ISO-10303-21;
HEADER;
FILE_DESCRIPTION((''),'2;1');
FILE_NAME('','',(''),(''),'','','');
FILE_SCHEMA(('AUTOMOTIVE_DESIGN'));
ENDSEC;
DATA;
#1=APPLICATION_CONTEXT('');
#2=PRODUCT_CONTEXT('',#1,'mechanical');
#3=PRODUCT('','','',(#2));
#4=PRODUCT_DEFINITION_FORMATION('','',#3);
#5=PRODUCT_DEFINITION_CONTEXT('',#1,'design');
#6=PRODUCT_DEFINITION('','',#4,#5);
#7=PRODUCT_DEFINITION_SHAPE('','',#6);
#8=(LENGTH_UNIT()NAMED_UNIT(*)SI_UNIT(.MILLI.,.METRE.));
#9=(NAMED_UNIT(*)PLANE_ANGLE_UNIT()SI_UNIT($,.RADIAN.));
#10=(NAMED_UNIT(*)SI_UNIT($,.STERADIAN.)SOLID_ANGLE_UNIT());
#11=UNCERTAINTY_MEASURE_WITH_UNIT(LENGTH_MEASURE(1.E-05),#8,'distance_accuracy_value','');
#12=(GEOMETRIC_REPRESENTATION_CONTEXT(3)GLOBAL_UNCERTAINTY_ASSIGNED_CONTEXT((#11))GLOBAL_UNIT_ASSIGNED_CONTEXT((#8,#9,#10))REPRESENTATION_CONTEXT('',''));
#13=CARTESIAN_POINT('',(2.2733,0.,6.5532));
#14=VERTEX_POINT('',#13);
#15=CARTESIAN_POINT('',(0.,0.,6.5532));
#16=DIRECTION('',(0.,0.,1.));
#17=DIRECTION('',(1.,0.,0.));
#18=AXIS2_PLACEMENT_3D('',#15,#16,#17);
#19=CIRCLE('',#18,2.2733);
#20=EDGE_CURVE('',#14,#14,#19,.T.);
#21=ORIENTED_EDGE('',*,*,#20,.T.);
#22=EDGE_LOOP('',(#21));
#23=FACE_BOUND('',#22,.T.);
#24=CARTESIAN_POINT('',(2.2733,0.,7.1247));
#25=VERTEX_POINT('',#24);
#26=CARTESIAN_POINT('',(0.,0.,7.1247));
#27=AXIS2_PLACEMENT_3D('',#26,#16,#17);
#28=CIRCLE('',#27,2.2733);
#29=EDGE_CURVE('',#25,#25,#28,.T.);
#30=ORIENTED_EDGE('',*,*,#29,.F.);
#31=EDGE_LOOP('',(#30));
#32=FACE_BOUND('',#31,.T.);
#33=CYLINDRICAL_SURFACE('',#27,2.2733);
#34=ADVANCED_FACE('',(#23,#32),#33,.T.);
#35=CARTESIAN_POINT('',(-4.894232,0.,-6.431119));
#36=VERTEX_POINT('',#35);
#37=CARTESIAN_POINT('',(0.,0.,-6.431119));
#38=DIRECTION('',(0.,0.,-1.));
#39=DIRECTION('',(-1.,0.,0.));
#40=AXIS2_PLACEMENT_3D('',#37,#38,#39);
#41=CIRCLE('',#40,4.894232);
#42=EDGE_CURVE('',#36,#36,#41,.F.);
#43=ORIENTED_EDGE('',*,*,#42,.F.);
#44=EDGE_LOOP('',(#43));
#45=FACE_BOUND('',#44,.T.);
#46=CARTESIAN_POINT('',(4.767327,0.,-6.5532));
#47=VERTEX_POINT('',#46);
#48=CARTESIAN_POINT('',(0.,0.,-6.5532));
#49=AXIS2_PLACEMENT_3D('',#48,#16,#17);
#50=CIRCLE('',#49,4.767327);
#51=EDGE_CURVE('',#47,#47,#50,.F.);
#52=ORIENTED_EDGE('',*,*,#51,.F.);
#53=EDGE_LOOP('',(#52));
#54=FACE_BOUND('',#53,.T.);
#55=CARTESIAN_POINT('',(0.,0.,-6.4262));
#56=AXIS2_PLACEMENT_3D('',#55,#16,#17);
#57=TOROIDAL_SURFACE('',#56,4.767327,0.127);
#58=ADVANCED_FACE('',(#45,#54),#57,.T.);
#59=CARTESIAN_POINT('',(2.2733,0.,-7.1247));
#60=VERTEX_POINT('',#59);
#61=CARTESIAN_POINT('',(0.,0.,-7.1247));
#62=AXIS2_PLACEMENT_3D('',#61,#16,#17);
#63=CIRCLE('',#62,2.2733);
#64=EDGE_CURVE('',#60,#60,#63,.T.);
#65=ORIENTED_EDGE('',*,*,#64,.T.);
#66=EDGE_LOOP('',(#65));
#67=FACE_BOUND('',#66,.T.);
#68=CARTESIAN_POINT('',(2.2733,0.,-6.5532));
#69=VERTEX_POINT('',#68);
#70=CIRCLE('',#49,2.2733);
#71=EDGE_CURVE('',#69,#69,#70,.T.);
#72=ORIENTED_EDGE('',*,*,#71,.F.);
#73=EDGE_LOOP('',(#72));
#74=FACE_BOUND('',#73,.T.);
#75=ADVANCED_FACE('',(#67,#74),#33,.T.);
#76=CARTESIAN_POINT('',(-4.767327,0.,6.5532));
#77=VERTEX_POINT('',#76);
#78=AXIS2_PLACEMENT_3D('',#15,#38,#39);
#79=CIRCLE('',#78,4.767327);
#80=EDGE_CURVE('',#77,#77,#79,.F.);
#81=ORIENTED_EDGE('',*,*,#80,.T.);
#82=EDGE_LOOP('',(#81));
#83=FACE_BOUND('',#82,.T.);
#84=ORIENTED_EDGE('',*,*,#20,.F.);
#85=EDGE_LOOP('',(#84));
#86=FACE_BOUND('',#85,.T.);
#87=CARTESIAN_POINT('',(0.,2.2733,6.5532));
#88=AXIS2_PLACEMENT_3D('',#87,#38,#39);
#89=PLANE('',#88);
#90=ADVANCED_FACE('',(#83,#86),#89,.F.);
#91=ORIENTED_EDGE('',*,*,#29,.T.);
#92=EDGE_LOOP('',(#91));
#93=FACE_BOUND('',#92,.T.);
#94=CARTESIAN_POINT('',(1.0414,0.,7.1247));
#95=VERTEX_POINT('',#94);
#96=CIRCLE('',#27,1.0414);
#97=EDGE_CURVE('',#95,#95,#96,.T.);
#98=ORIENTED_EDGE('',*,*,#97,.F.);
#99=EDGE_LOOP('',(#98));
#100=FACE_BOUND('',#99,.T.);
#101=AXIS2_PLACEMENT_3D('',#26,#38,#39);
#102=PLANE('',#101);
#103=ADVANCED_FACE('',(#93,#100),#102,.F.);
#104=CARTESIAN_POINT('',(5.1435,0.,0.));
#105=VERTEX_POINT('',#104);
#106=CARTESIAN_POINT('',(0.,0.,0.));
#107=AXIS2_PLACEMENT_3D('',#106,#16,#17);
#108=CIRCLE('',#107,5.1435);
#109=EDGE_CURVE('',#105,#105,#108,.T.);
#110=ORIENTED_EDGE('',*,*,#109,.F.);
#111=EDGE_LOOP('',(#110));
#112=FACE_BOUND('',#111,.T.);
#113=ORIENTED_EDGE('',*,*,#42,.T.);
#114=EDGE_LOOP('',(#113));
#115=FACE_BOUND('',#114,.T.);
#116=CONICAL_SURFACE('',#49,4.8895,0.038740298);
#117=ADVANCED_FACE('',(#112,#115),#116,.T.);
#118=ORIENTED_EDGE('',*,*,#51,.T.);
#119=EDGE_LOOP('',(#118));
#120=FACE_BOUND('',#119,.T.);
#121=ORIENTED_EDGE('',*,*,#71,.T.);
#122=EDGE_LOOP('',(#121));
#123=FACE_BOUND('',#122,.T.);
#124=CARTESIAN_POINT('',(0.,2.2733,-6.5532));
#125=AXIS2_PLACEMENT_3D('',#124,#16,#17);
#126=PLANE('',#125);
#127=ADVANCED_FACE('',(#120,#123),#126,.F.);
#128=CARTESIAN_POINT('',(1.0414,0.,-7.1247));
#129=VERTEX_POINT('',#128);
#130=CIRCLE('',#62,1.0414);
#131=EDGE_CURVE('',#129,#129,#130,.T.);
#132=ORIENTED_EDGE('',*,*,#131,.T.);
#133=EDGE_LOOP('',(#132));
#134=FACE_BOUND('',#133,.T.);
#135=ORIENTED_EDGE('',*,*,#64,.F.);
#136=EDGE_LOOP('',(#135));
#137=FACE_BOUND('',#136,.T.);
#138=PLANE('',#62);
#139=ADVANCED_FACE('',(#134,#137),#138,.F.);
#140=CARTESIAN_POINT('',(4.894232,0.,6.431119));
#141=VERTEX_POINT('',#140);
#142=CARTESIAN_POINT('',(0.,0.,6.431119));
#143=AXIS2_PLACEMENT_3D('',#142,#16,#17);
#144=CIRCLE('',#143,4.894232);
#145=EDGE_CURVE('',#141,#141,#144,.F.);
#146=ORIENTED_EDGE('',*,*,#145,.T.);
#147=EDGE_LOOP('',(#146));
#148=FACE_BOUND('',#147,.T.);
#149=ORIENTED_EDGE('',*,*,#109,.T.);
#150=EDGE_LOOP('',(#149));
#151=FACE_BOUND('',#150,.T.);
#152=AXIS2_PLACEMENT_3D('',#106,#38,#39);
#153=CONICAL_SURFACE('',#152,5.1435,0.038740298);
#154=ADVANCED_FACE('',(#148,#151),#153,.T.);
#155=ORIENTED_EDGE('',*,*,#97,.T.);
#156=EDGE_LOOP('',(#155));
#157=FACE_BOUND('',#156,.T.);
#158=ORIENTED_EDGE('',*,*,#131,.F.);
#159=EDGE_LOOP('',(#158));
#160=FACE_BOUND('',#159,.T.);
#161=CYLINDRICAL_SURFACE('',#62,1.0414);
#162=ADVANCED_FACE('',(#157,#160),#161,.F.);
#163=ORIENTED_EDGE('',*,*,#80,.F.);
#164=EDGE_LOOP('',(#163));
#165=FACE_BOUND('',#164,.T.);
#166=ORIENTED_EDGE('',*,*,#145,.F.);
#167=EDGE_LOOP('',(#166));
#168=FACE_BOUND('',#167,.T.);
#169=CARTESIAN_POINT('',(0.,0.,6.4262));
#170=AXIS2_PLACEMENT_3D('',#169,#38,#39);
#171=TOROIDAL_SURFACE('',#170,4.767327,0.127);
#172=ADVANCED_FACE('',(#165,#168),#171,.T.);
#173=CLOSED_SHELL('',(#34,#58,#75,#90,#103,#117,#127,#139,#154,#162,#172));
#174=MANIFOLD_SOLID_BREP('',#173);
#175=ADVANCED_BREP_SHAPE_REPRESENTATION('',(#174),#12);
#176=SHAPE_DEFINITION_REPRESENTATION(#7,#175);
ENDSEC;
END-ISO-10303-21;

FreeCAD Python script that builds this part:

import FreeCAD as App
import Part
import Sketcher
from FreeCAD import Vector
Q = App.Units.Quantity


def edges_at(feature, points):
    """Names of the edges that pass closest to the given points."""
    edges = feature.Shape.Edges
    near = lambda p: min(range(len(edges)), key=lambda i: edges[i].distToShape(Part.Vertex(*p))[0])
    return sorted({f"Edge{near(p) + 1}" for p in points})

doc = App.newDocument("Part")
params = doc.addObject("Spreadsheet::Sheet", "Params")
for row, (alias, value) in enumerate([
    ("sketch1_width", "0.103 in"),
    ("sketch1_height", "0.561 in"),
    ("revolution_angle", "360 deg"),
    ("sketch2_diameter", "0.082 in"),
    ("fillet_radius", "0.005 in"),
], start=1):
    params.set(f"A{row}", alias)
    params.set(f"B{row}", "=" + value)
    params.setAlias(f"B{row}", alias)

body = doc.addObject("PartDesign::Body", "Body")

sketch1 = body.newObject("Sketcher::SketchObject", "Sketch")
sketch1.AttachmentSupport = (doc.getObject("YZ_Plane"), [""])
sketch1.MapMode = "FlatFace"
sketch1.addGeometry([
    Part.LineSegment(Vector(2.2733, 7.1247, 0), Vector(0, 7.1247, 0)),
    Part.LineSegment(Vector(0, 7.1247, 0), Vector(0, -7.1247, 0)),
    Part.LineSegment(Vector(0, -7.1247, 0), Vector(2.2733, -7.1247, 0)),
    Part.LineSegment(Vector(2.2733, -7.1247, 0), Vector(2.2733, -6.5532, 0)),
    Part.LineSegment(Vector(2.2733, -6.5532, 0), Vector(4.8895, -6.5532, 0)),
    Part.LineSegment(Vector(4.8895, -6.5532, 0), Vector(5.1435, 0, 0)),
    Part.LineSegment(Vector(5.1435, 0, 0), Vector(4.8895, 6.5532, 0)),
    Part.LineSegment(Vector(4.8895, 6.5532, 0), Vector(2.2733, 6.5532, 0)),
    Part.LineSegment(Vector(2.2733, 6.5532, 0), Vector(2.2733, 7.1247, 0)),
], False)
sketch1.addConstraint([
    Sketcher.Constraint("Coincident", 0, 2, 1, 1),
    Sketcher.Constraint("Coincident", 1, 2, 2, 1),
    Sketcher.Constraint("Coincident", 2, 2, 3, 1),
    Sketcher.Constraint("Coincident", 3, 2, 4, 1),
    Sketcher.Constraint("Coincident", 4, 2, 5, 1),
    Sketcher.Constraint("Coincident", 5, 2, 6, 1),
    Sketcher.Constraint("Coincident", 6, 2, 7, 1),
    Sketcher.Constraint("Coincident", 7, 2, 8, 1),
    Sketcher.Constraint("Coincident", 8, 2, 0, 1),
    Sketcher.Constraint("Horizontal", 0),
    Sketcher.Constraint("Vertical", 1),
    Sketcher.Constraint("Horizontal", 2),
    Sketcher.Constraint("Vertical", 3),
    Sketcher.Constraint("Horizontal", 4),
    Sketcher.Constraint("Horizontal", 7),
    Sketcher.Constraint("Vertical", 8),
    Sketcher.Constraint("Symmetric", 0, 2, 1, 2, -1, 1),
    Sketcher.Constraint("Symmetric", 4, 2, 6, 2, -1),
    Sketcher.Constraint("PointOnObject", 5, 2, -1),
    Sketcher.Constraint("Vertical", 3, 2, 7, 2),
    Sketcher.Constraint("DistanceX", 4, 1, 4, 2, Q("0.103 in")),
    Sketcher.Constraint("DistanceY", 1, 2, 1, 1, Q("0.561 in")),
    Sketcher.Constraint("DistanceX", 4, 2, 5, 2, Q("0.01 in")),
    Sketcher.Constraint("DistanceX", 0, 2, 0, 1, Q("0.0895 in")),
    Sketcher.Constraint("DistanceY", 3, 1, 3, 2, Q("0.0225 in")),
])
sketch1.setExpression("Constraints[20]", "Params.sketch1_width")
sketch1.setExpression("Constraints[21]", "Params.sketch1_height")
revolution = body.newObject("PartDesign::Revolution", "Revolution")
revolution.Profile = sketch1
revolution.ReferenceAxis = (sketch1, ["V_Axis"])
revolution.setExpression("Angle", "Params.revolution_angle")

sketch2 = body.newObject("Sketcher::SketchObject", "Sketch001")
sketch2.AttachmentSupport = (doc.getObject("XY_Plane"), [""])
sketch2.MapMode = "FlatFace"
sketch2.AttachmentOffset = App.Placement(Vector(0, 0, 0.2805 * 25.4), App.Rotation())
sketch2.addGeometry(Part.Circle(Vector(0, 0, 0), Vector(0, 0, 1), 1.0414), False)
sketch2.addConstraint([
    Sketcher.Constraint("Coincident", 0, 3, -1, 1),
    Sketcher.Constraint("Diameter", 0, Q("0.082 in")),
])
sketch2.setExpression("Constraints[1]", "Params.sketch2_diameter")
pocket1 = body.newObject("PartDesign::Pocket", "Pocket")
pocket1.Profile = sketch2
pocket1.Type = "ThroughAll"
doc.recompute()

fillet = body.newObject("PartDesign::Fillet", "Fillet")
fillet.Base = (pocket1, edges_at(pocket1, [(-4.889, 0, 6.553), (-4.889, 0, -6.553)]))
fillet.setExpression("Radius", "Params.fillet_radius")

doc.recompute()
